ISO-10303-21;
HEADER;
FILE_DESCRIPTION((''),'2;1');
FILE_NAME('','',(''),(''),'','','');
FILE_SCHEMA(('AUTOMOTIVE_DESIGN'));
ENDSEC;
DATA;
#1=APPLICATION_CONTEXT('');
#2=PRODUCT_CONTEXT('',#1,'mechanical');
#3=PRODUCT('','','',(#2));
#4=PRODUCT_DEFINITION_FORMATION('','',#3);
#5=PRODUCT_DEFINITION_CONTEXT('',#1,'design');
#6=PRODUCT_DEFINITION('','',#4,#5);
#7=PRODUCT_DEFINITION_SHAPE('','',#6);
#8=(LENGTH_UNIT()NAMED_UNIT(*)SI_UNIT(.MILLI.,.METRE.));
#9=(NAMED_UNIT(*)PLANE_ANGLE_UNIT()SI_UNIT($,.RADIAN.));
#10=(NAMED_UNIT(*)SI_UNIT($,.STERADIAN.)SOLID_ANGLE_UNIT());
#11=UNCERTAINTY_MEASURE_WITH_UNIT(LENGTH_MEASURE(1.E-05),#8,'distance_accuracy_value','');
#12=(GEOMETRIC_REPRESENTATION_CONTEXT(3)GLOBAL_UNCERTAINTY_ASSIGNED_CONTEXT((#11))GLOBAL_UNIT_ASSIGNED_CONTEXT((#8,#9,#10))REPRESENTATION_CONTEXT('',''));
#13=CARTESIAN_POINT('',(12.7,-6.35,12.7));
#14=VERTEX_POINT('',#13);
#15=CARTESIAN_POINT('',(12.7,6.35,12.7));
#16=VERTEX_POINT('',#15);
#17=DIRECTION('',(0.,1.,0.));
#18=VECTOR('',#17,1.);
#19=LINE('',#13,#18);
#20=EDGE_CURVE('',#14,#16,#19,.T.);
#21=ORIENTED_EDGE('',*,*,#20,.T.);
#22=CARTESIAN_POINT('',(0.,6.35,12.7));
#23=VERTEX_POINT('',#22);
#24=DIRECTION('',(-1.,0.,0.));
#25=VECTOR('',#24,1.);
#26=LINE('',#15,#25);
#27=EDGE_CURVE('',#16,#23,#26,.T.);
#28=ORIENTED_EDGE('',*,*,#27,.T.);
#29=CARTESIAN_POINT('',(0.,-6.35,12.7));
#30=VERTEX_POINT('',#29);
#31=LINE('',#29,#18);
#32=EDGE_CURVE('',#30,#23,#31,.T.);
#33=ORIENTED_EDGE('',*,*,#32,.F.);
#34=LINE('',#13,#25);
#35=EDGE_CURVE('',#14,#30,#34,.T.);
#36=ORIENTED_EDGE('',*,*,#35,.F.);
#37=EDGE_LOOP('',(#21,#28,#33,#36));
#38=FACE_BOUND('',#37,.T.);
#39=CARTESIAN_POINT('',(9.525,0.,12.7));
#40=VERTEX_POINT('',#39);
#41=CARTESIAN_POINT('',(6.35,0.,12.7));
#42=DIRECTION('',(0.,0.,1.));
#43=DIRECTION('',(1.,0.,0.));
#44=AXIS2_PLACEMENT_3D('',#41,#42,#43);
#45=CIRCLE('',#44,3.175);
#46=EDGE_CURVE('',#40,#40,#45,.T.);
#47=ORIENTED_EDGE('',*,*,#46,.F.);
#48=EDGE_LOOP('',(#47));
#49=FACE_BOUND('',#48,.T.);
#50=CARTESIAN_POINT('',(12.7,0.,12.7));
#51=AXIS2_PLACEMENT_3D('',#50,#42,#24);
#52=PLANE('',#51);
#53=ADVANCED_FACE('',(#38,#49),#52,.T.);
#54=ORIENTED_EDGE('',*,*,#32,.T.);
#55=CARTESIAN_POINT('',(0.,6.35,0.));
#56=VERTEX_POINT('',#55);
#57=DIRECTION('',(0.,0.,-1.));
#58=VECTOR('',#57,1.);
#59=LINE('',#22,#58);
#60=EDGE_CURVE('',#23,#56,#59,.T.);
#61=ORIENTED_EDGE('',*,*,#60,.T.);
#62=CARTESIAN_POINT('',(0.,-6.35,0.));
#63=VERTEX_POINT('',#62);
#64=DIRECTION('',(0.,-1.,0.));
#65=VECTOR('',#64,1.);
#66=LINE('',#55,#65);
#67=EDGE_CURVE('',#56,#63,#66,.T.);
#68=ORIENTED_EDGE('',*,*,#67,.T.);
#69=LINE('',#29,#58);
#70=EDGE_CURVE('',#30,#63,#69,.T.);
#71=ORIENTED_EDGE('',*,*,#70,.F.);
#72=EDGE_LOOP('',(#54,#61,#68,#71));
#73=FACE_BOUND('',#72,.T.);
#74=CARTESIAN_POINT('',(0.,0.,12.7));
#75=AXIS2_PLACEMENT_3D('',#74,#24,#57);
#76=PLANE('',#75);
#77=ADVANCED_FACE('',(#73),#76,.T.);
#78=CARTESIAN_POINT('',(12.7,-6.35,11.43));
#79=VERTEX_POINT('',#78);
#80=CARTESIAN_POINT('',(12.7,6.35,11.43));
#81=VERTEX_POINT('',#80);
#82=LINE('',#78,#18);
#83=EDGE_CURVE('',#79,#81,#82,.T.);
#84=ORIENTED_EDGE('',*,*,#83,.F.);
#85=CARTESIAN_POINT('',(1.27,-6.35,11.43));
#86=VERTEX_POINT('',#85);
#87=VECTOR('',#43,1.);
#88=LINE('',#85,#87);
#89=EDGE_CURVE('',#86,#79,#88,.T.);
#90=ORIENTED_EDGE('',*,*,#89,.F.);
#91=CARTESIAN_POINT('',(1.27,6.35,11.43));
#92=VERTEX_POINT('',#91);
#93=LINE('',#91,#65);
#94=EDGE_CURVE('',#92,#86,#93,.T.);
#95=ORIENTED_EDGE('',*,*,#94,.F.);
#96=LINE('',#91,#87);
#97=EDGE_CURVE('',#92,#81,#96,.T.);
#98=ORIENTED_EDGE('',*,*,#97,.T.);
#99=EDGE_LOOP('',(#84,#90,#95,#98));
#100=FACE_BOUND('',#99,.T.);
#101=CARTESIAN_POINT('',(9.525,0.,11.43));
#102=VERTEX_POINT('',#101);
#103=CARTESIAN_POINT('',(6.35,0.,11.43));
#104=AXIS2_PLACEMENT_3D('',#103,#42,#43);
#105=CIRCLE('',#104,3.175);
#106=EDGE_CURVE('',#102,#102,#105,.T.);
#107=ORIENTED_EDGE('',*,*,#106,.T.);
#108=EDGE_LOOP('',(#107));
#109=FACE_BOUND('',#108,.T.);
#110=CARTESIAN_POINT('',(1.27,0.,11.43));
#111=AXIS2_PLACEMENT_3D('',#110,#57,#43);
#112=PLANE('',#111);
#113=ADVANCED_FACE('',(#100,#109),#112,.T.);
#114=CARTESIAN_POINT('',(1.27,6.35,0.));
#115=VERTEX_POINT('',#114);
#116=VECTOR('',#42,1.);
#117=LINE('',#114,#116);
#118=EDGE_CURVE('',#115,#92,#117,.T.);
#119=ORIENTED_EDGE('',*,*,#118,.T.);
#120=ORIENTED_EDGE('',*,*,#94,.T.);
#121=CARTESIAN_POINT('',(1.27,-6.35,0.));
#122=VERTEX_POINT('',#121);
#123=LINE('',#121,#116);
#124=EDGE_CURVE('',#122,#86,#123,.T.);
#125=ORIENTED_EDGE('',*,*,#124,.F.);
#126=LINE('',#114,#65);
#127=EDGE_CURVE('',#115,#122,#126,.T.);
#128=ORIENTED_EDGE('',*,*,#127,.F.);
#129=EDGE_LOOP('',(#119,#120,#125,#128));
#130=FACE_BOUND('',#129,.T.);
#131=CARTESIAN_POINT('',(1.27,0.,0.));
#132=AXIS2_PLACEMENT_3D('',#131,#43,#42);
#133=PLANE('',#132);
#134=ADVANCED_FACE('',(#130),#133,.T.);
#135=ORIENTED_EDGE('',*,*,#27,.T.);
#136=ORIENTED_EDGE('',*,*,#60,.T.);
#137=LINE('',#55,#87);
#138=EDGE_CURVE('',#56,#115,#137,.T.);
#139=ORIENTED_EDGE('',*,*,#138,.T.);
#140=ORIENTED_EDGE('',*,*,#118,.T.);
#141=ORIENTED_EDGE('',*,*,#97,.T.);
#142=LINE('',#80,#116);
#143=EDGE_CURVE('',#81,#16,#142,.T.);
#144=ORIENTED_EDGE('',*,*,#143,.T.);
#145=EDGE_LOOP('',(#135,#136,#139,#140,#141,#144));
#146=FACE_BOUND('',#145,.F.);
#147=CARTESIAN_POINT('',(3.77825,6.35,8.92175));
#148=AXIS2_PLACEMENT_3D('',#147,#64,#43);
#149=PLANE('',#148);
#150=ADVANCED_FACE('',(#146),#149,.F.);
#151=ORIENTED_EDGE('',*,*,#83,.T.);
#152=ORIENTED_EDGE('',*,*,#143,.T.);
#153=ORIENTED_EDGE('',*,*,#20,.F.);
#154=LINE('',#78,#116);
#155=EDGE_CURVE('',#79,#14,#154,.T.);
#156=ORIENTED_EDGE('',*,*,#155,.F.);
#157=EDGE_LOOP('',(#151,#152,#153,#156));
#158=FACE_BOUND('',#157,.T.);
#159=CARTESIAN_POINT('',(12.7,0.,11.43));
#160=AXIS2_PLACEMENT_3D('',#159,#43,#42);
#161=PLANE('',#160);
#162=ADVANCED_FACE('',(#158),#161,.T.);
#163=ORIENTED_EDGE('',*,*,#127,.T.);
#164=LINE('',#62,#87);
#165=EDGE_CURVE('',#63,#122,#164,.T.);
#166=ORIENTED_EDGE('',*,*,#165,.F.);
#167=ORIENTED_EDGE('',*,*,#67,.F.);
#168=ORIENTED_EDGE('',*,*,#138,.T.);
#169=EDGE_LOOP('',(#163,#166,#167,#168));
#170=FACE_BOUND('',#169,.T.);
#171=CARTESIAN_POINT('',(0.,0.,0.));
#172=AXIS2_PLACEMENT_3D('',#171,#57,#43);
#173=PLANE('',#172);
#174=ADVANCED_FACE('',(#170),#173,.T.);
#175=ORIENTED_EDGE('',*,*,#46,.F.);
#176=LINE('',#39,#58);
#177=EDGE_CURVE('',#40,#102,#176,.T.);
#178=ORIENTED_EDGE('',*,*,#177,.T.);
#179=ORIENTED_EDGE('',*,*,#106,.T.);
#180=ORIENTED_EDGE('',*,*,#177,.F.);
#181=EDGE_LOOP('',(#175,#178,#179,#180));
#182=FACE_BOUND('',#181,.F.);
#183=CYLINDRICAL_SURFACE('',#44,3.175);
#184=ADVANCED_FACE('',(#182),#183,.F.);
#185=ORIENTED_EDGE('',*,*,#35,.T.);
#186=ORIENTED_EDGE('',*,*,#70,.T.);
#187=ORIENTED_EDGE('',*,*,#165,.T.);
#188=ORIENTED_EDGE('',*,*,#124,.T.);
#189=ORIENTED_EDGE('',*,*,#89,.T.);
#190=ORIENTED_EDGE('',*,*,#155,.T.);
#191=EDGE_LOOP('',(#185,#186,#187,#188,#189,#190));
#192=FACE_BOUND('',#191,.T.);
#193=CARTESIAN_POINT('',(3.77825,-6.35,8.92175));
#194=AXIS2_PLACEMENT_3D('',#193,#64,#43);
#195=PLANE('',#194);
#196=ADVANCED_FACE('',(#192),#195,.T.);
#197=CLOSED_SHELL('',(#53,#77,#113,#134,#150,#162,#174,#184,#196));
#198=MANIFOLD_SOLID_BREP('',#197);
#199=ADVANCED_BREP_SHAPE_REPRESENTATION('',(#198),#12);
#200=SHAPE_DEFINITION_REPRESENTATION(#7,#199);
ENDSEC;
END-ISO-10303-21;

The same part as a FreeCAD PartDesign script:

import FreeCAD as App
import Part
import Sketcher

V = App.Vector
Q = App.Units.Quantity


def add_polygon(sketch, points):
    """Adds a closed chain of lines whose ends are joined by coincident constraints."""
    first, n = sketch.GeometryCount, len(points)
    for a, b in zip(points, points[1:] + points[:1]):
        sketch.addGeometry(Part.LineSegment(App.Vector(*a, 0), App.Vector(*b, 0)), False)
    for i in range(n):
        sketch.addConstraint(Sketcher.Constraint("Coincident", first + i, 2, first + (i + 1) % n, 1))

doc = App.newDocument("Part")
body = doc.addObject("PartDesign::Body", "Body")

# Sketch on XZ plane
sketch1 = body.newObject("Sketcher::SketchObject", "Sketch")
sketch1.AttachmentSupport = (doc.getObject("XZ_Plane"), [""])
sketch1.MapMode = "FlatFace"
add_polygon(sketch1, [(0, 12.7), (0, 0), (1.3, 0), (1.3, 11.4), (12.7, 11.4), (12.7, 12.7)])  # lines 0-5
sketch1.addConstraint(Sketcher.Constraint("Vertical", 0))
sketch1.addConstraint(Sketcher.Constraint("Horizontal", 1))
sketch1.addConstraint(Sketcher.Constraint("Vertical", 2))
sketch1.addConstraint(Sketcher.Constraint("Horizontal", 3))
sketch1.addConstraint(Sketcher.Constraint("Vertical", 4))
sketch1.addConstraint(Sketcher.Constraint("Horizontal", 5))
sketch1.addConstraint(Sketcher.Constraint("Coincident", 0, 2, -1, 1))
sketch1.addConstraint(Sketcher.Constraint("Equal", 5, 0))
sketch1.addConstraint(Sketcher.Constraint("Equal", 3, 2))
sketch1.addConstraint(Sketcher.Constraint("DistanceX", 5, 2, 5, 1, Q("0.5 in")))
sketch1.addConstraint(Sketcher.Constraint("DistanceX", 1, 1, 1, 2, Q("0.05 in")))
pad1 = body.newObject("PartDesign::Pad", "Pad")
pad1.Profile = sketch1
pad1.Length = Q("0.5 in")
pad1.Midplane = True

# Sketch on XY plane
sketch2 = body.newObject("Sketcher::SketchObject", "Sketch001")
sketch2.AttachmentSupport = (doc.getObject("XY_Plane"), [""])
sketch2.MapMode = "FlatFace"
sketch2.AttachmentOffset = App.Placement(V(0, 0, 0.5 * 25.4), App.Rotation())
sketch2.addGeometry(Part.Circle(V(6.3, 0, 0), V(0, 0, 1), 3.2), False)
sketch2.addConstraint(Sketcher.Constraint("PointOnObject", 0, 3, -1))
sketch2.addConstraint(Sketcher.Constraint("Diameter", 0, Q("0.25 in")))
sketch2.addConstraint(Sketcher.Constraint("DistanceX", -1, 1, 0, 3, Q("0.25 in")))
pocket1 = body.newObject("PartDesign::Pocket", "Pocket")
pocket1.Profile = sketch2
pocket1.Length = Q("1 in")

doc.recompute()
